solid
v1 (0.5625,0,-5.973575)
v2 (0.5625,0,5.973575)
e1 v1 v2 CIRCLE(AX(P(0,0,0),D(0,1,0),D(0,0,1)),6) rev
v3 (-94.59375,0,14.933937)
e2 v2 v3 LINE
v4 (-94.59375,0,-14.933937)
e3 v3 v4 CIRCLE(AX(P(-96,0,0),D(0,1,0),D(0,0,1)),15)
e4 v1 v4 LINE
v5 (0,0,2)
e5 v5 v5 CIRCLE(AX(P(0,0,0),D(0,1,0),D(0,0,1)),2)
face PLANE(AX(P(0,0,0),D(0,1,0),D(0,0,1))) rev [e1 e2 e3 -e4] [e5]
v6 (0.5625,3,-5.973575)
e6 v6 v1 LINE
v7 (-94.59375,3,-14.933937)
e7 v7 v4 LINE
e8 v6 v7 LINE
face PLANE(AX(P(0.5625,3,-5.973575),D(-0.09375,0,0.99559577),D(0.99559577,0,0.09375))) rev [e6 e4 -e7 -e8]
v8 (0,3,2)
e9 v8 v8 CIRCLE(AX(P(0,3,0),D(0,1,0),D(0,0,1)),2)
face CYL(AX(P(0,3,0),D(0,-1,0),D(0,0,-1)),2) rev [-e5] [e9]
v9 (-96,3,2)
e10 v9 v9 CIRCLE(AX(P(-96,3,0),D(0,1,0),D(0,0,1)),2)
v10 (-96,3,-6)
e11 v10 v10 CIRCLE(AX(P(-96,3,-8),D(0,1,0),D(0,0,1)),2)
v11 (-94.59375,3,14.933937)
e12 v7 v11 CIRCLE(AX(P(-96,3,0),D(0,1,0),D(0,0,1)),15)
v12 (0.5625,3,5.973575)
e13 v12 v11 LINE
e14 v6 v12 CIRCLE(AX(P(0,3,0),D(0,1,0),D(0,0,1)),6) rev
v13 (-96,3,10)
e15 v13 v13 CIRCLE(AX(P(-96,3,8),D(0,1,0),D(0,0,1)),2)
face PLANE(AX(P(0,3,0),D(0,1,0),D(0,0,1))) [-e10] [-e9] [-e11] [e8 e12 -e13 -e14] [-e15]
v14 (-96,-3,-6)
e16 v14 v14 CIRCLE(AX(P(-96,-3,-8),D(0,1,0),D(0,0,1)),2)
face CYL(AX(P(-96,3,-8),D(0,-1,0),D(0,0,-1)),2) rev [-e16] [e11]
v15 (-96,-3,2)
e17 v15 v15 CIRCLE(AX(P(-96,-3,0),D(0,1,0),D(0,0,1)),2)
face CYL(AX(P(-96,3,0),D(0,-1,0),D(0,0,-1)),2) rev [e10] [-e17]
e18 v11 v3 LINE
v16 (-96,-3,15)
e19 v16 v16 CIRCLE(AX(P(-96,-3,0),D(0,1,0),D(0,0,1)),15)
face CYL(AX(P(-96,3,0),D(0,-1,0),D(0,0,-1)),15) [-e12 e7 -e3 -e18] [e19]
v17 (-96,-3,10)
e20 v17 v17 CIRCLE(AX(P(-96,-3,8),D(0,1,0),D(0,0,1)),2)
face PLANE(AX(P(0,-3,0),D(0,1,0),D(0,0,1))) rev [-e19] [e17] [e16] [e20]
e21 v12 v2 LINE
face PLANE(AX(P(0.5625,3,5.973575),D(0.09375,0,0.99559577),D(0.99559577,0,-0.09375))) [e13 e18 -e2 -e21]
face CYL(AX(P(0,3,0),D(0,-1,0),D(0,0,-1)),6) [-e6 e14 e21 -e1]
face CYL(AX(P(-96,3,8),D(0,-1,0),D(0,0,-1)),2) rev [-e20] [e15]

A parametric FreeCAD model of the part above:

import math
import FreeCAD as App
import Part
import Sketcher
from FreeCAD import Vector

doc = App.newDocument("Part")
params = doc.addObject("Spreadsheet::Sheet", "Params")
for row, (alias, value) in enumerate([
    ("sketch1_diameter", "4 mm"),
    ("sketch1_radius", "6 mm"),
    ("sketch1_radius2", "15 mm"),
    ("pad1_length", "3 mm"),
    ("sketch2_diameter", "30 mm"),
    ("sketch2_diameter2", "4 mm"),
    ("pad2_length", "3 mm"),
], start=1):
    params.set(f"A{row}", alias)
    params.set(f"B{row}", "=" + value)
    params.setAlias(f"B{row}", alias)

body = doc.addObject("PartDesign::Body", "Body")

sketch1 = body.newObject("Sketcher::SketchObject", "Sketch")
sketch1.AttachmentSupport = (doc.getObject("XZ_Plane"), [""])
sketch1.MapMode = "FlatFace"
sketch1.addGeometry([
    Part.ArcOfCircle(Part.Circle(Vector(0, 0, 0), Vector(0, 0, 1), 6), math.radians(-85), math.radians(85)),
    Part.LineSegment(Vector(0.6, -6, 0), Vector(-94.6, -14.9, 0)),
    Part.ArcOfCircle(Part.Circle(Vector(-96, 0, 0), Vector(0, 0, 1), 15), math.radians(85), math.radians(275)),
    Part.LineSegment(Vector(-94.6, 14.9, 0), Vector(0.6, 6, 0)),
    Part.Circle(Vector(-96, 8, 0), Vector(0, 0, 1), 2),
    Part.Circle(Vector(-96, 0, 0), Vector(0, 0, 1), 2),
    Part.Circle(Vector(-96, -8, 0), Vector(0, 0, 1), 2),
    Part.Circle(Vector(0, 0, 0), Vector(0, 0, 1), 2),
], False)
sketch1.addConstraint([
    Sketcher.Constraint("Tangent", 0, 1, 1, 1),
    Sketcher.Constraint("Tangent", 1, 2, 2, 2),
    Sketcher.Constraint("Tangent", 2, 1, 3, 1),
    Sketcher.Constraint("Tangent", 3, 2, 0, 2),
    Sketcher.Constraint("Coincident", 0, 3, -1, 1),
    Sketcher.Constraint("Coincident", 7, 3, -1, 1),
    Sketcher.Constraint("Coincident", 5, 3, 2, 3),
    Sketcher.Constraint("Equal", 4, 5),
    Sketcher.Constraint("Equal", 5, 6),
    Sketcher.Constraint("Equal", 6, 7),
    Sketcher.Constraint("Symmetric", 4, 3, 6, 3, -1),
    Sketcher.Constraint("PointOnObject", 2, 3, -1),
    Sketcher.Constraint("Vertical", 2, 3, 4, 3),
    Sketcher.Constraint("Diameter", 4, 4.0),
    Sketcher.Constraint("Radius", 0, 6.0),
    Sketcher.Constraint("Radius", 2, 15.0),
    Sketcher.Constraint("DistanceX", 2, 3, -1, 1, 96.0),
    Sketcher.Constraint("DistanceY", -1, 1, 4, 3, 8.0),
])
sketch1.setExpression("Constraints[13]", "Params.sketch1_diameter")
sketch1.setExpression("Constraints[14]", "Params.sketch1_radius")
sketch1.setExpression("Constraints[15]", "Params.sketch1_radius2")
pad1 = body.newObject("PartDesign::Pad", "Pad")
pad1.Profile = sketch1
pad1.setExpression("Length", "Params.pad1_length")
pad1.Reversed = True

sketch2 = body.newObject("Sketcher::SketchObject", "Sketch001")
sketch2.AttachmentSupport = (doc.getObject("XZ_Plane"), [""])
sketch2.MapMode = "FlatFace"
sketch2.addGeometry([
    Part.Circle(Vector(-96, 0, 0), Vector(0, 0, 1), 15),
    Part.Circle(Vector(-96, 8, 0), Vector(0, 0, 1), 2),
    Part.Circle(Vector(-96, 0, 0), Vector(0, 0, 1), 2),
    Part.Circle(Vector(-96, -8, 0), Vector(0, 0, 1), 2),
], False)
sketch2.addConstraint([
    Sketcher.Constraint("Coincident", 2, 3, 0, 3),
    Sketcher.Constraint("Equal", 1, 2),
    Sketcher.Constraint("Equal", 2, 3),
    Sketcher.Constraint("Symmetric", 1, 3, 3, 3, -1),
    Sketcher.Constraint("PointOnObject", 0, 3, -1),
    Sketcher.Constraint("Vertical", 0, 3, 1, 3),
    Sketcher.Constraint("Diameter", 0, 30.0),
    Sketcher.Constraint("Diameter", 1, 4.0),
    Sketcher.Constraint("DistanceX", 0, 3, -1, 1, 96.0),
    Sketcher.Constraint("DistanceY", -1, 1, 1, 3, 8.0),
])
sketch2.setExpression("Constraints[6]", "Params.sketch2_diameter")
sketch2.setExpression("Constraints[7]", "Params.sketch2_diameter2")
pad2 = body.newObject("PartDesign::Pad", "Pad001")
pad2.Profile = sketch2
pad2.setExpression("Length", "Params.pad2_length")

doc.recompute()
